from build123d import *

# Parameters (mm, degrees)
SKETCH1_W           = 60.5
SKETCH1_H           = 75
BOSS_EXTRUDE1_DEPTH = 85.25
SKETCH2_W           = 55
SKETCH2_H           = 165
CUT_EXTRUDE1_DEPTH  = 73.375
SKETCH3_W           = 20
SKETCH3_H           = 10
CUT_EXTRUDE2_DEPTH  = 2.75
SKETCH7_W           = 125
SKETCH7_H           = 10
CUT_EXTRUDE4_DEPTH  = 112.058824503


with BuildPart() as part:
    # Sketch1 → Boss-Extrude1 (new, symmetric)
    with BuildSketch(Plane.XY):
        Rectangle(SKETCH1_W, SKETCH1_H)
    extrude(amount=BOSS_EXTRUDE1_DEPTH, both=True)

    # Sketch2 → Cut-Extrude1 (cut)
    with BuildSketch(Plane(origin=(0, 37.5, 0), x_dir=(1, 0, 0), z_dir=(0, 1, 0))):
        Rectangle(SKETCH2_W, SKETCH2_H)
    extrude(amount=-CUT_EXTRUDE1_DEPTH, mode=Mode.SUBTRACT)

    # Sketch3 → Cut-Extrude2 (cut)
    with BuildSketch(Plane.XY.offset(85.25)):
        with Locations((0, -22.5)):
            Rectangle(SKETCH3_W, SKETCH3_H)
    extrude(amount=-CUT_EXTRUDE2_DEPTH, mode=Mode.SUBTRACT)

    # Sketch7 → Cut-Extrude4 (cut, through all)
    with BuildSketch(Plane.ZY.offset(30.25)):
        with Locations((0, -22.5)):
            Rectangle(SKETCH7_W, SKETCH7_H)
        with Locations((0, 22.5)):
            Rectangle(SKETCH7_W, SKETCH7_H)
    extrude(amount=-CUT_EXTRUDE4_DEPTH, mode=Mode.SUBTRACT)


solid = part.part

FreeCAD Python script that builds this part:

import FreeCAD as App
import Part
import Sketcher

doc = App.newDocument("Part")
params = doc.addObject("Spreadsheet::Sheet", "Params")
for row, (alias, value) in enumerate([
    ("sketch1_height", "75 mm"),
    ("sketch1_width", "60.5 mm"),
    ("pad1_length", "170.5 mm"),
    ("sketch2_width", "55 mm"),
    ("sketch2_height", "165 mm"),
    ("pocket1_length", "73.375 mm"),
    ("sketch3_width", "20 mm"),
    ("sketch3_height", "10 mm"),
    ("pocket2_length", "2.75 mm"),
    ("sketch4_width", "10 mm"),
    ("sketch4_height", "125 mm"),
], start=1):
    params.set(f"A{row}", alias)
    params.set(f"B{row}", "=" + value)
    params.setAlias(f"B{row}", alias)

body = doc.addObject("PartDesign::Body", "Body")

sketch1 = body.newObject("Sketcher::SketchObject", "Sketch")
sketch1.AttachmentSupport = (doc.getObject("XY_Plane"), [""])
sketch1.MapMode = "FlatFace"
sketch1.addGeometry([
    Part.LineSegment(App.Vector(-30.25, 37.5, 0), App.Vector(-30.25, -37.5, 0)),
    Part.LineSegment(App.Vector(-30.25, -37.5, 0), App.Vector(30.25, -37.5, 0)),
    Part.LineSegment(App.Vector(30.25, -37.5, 0), App.Vector(30.25, 37.5, 0)),
    Part.LineSegment(App.Vector(30.25, 37.5, 0), App.Vector(-30.25, 37.5, 0)),
], False)
sketch1.addConstraint([
    Sketcher.Constraint("Coincident", 0, 2, 1, 1),
    Sketcher.Constraint("Coincident", 1, 2, 2, 1),
    Sketcher.Constraint("Coincident", 2, 2, 3, 1),
    Sketcher.Constraint("Coincident", 3, 2, 0, 1),
    Sketcher.Constraint("Vertical", 0),
    Sketcher.Constraint("Horizontal", 1),
    Sketcher.Constraint("Vertical", 2),
    Sketcher.Constraint("Horizontal", 3),
    Sketcher.Constraint("Symmetric", 0, 2, 2, 2, -1, 1),
    Sketcher.Constraint("DistanceY", 0, 2, 0, 1, 75.0),
    Sketcher.Constraint("DistanceX", 1, 1, 1, 2, 60.5),
])
sketch1.setExpression("Constraints[9]", "Params.sketch1_height")
sketch1.setExpression("Constraints[10]", "Params.sketch1_width")
pad1 = body.newObject("PartDesign::Pad", "Pad")
pad1.Profile = sketch1
pad1.setExpression("Length", "Params.pad1_length")
pad1.Midplane = True

sketch2 = body.newObject("Sketcher::SketchObject", "Sketch001")
sketch2.AttachmentSupport = (doc.getObject("XZ_Plane"), [""])
sketch2.MapMode = "FlatFace"
sketch2.AttachmentOffset = App.Placement(App.Vector(0, 0, -37.5), App.Rotation())
sketch2.addGeometry([
    Part.LineSegment(App.Vector(-27.5, -82.5, 0), App.Vector(-27.5, 82.5, 0)),
    Part.LineSegment(App.Vector(-27.5, 82.5, 0), App.Vector(27.5, 82.5, 0)),
    Part.LineSegment(App.Vector(27.5, 82.5, 0), App.Vector(27.5, -82.5, 0)),
    Part.LineSegment(App.Vector(27.5, -82.5, 0), App.Vector(-27.5, -82.5, 0)),
], False)
sketch2.addConstraint([
    Sketcher.Constraint("Coincident", 0, 2, 1, 1),
    Sketcher.Constraint("Coincident", 1, 2, 2, 1),
    Sketcher.Constraint("Coincident", 2, 2, 3, 1),
    Sketcher.Constraint("Coincident", 3, 2, 0, 1),
    Sketcher.Constraint("Vertical", 0),
    Sketcher.Constraint("Horizontal", 1),
    Sketcher.Constraint("Vertical", 2),
    Sketcher.Constraint("Horizontal", 3),
    Sketcher.Constraint("Symmetric", 0, 2, 2, 2, -1, 1),
    Sketcher.Constraint("DistanceX", 1, 1, 1, 2, 55.0),
    Sketcher.Constraint("DistanceY", 0, 1, 0, 2, 165.0),
])
sketch2.setExpression("Constraints[9]", "Params.sketch2_width")
sketch2.setExpression("Constraints[10]", "Params.sketch2_height")
pocket1 = body.newObject("PartDesign::Pocket", "Pocket")
pocket1.Profile = sketch2
pocket1.setExpression("Length", "Params.pocket1_length")
pocket1.Reversed = True

sketch3 = body.newObject("Sketcher::SketchObject", "Sketch002")
sketch3.AttachmentSupport = (doc.getObject("XY_Plane"), [""])
sketch3.MapMode = "FlatFace"
sketch3.AttachmentOffset = App.Placement(App.Vector(0, 0, 85.25), App.Rotation())
sketch3.addGeometry([
    Part.LineSegment(App.Vector(-10, -17.5, 0), App.Vector(-10, -27.5, 0)),
    Part.LineSegment(App.Vector(-10, -27.5, 0), App.Vector(10, -27.5, 0)),
    Part.LineSegment(App.Vector(10, -27.5, 0), App.Vector(10, -17.5, 0)),
    Part.LineSegment(App.Vector(10, -17.5, 0), App.Vector(-10, -17.5, 0)),
], False)
sketch3.addConstraint([
    Sketcher.Constraint("Coincident", 0, 2, 1, 1),
    Sketcher.Constraint("Coincident", 1, 2, 2, 1),
    Sketcher.Constraint("Coincident", 2, 2, 3, 1),
    Sketcher.Constraint("Coincident", 3, 2, 0, 1),
    Sketcher.Constraint("Vertical", 0),
    Sketcher.Constraint("Horizontal", 1),
    Sketcher.Constraint("Vertical", 2),
    Sketcher.Constraint("Horizontal", 3),
    Sketcher.Constraint("DistanceX", 1, 1, 1, 2, 20.0),
    Sketcher.Constraint("DistanceY", 0, 2, 0, 1, 10.0),
    Sketcher.Constraint("DistanceX", 0, 2, -1, 1, 10.0),
    Sketcher.Constraint("DistanceY", 0, 2, -1, 1, 27.5),
])
sketch3.setExpression("Constraints[8]", "Params.sketch3_width")
sketch3.setExpression("Constraints[9]", "Params.sketch3_height")
pocket2 = body.newObject("PartDesign::Pocket", "Pocket001")
pocket2.Profile = sketch3
pocket2.setExpression("Length", "Params.pocket2_length")

sketch4 = body.newObject("Sketcher::SketchObject", "Sketch003")
sketch4.AttachmentSupport = (doc.getObject("YZ_Plane"), [""])
sketch4.MapMode = "FlatFace"
sketch4.AttachmentOffset = App.Placement(App.Vector(0, 0, -30.25), App.Rotation())
sketch4.addGeometry([
    Part.LineSegment(App.Vector(-17.5, -62.5, 0), App.Vector(-27.5, -62.5, 0)),
    Part.LineSegment(App.Vector(-27.5, -62.5, 0), App.Vector(-27.5, 62.5, 0)),
    Part.LineSegment(App.Vector(-27.5, 62.5, 0), App.Vector(-17.5, 62.5, 0)),
    Part.LineSegment(App.Vector(-17.5, 62.5, 0), App.Vector(-17.5, -62.5, 0)),
    Part.LineSegment(App.Vector(27.5, -62.5, 0), App.Vector(17.5, -62.5, 0)),
    Part.LineSegment(App.Vector(17.5, -62.5, 0), App.Vector(17.5, 62.5, 0)),
    Part.LineSegment(App.Vector(17.5, 62.5, 0), App.Vector(27.5, 62.5, 0)),
    Part.LineSegment(App.Vector(27.5, 62.5, 0), App.Vector(27.5, -62.5, 0)),
], False)
sketch4.addConstraint([
    Sketcher.Constraint("Coincident", 0, 2, 1, 1),
    Sketcher.Constraint("Coincident", 1, 2, 2, 1),
    Sketcher.Constraint("Coincident", 2, 2, 3, 1),
    Sketcher.Constraint("Coincident", 3, 2, 0, 1),
    Sketcher.Constraint("Coincident", 4, 2, 5, 1),
    Sketcher.Constraint("Coincident", 5, 2, 6, 1),
    Sketcher.Constraint("Coincident", 6, 2, 7, 1),
    Sketcher.Constraint("Coincident", 7, 2, 4, 1),
    Sketcher.Constraint("Horizontal", 0),
    Sketcher.Constraint("Vertical", 1),
    Sketcher.Constraint("Horizontal", 2),
    Sketcher.Constraint("Vertical", 3),
    Sketcher.Constraint("Horizontal", 4),
    Sketcher.Constraint("Vertical", 5),
    Sketcher.Constraint("Horizontal", 6),
    Sketcher.Constraint("Vertical", 7),
    Sketcher.Constraint("Symmetric", 2, 2, 4, 2, -1, 1),
    Sketcher.Constraint("Symmetric", 0, 2, 6, 2, -1, 1),
    Sketcher.Constraint("Horizontal", 3, 2, 4, 2),
    Sketcher.Constraint("DistanceX", 0, 2, 0, 1, 10.0),
    Sketcher.Constraint("DistanceY", 1, 1, 1, 2, 125.0),
    Sketcher.Constraint("DistanceX", 3, 2, 4, 2, 35.0),
])
sketch4.setExpression("Constraints[19]", "Params.sketch4_width")
sketch4.setExpression("Constraints[20]", "Params.sketch4_height")
pocket3 = body.newObject("PartDesign::Pocket", "Pocket002")
pocket3.Profile = sketch4
pocket3.Type = "ThroughAll"
pocket3.Reversed = True

doc.recompute()
